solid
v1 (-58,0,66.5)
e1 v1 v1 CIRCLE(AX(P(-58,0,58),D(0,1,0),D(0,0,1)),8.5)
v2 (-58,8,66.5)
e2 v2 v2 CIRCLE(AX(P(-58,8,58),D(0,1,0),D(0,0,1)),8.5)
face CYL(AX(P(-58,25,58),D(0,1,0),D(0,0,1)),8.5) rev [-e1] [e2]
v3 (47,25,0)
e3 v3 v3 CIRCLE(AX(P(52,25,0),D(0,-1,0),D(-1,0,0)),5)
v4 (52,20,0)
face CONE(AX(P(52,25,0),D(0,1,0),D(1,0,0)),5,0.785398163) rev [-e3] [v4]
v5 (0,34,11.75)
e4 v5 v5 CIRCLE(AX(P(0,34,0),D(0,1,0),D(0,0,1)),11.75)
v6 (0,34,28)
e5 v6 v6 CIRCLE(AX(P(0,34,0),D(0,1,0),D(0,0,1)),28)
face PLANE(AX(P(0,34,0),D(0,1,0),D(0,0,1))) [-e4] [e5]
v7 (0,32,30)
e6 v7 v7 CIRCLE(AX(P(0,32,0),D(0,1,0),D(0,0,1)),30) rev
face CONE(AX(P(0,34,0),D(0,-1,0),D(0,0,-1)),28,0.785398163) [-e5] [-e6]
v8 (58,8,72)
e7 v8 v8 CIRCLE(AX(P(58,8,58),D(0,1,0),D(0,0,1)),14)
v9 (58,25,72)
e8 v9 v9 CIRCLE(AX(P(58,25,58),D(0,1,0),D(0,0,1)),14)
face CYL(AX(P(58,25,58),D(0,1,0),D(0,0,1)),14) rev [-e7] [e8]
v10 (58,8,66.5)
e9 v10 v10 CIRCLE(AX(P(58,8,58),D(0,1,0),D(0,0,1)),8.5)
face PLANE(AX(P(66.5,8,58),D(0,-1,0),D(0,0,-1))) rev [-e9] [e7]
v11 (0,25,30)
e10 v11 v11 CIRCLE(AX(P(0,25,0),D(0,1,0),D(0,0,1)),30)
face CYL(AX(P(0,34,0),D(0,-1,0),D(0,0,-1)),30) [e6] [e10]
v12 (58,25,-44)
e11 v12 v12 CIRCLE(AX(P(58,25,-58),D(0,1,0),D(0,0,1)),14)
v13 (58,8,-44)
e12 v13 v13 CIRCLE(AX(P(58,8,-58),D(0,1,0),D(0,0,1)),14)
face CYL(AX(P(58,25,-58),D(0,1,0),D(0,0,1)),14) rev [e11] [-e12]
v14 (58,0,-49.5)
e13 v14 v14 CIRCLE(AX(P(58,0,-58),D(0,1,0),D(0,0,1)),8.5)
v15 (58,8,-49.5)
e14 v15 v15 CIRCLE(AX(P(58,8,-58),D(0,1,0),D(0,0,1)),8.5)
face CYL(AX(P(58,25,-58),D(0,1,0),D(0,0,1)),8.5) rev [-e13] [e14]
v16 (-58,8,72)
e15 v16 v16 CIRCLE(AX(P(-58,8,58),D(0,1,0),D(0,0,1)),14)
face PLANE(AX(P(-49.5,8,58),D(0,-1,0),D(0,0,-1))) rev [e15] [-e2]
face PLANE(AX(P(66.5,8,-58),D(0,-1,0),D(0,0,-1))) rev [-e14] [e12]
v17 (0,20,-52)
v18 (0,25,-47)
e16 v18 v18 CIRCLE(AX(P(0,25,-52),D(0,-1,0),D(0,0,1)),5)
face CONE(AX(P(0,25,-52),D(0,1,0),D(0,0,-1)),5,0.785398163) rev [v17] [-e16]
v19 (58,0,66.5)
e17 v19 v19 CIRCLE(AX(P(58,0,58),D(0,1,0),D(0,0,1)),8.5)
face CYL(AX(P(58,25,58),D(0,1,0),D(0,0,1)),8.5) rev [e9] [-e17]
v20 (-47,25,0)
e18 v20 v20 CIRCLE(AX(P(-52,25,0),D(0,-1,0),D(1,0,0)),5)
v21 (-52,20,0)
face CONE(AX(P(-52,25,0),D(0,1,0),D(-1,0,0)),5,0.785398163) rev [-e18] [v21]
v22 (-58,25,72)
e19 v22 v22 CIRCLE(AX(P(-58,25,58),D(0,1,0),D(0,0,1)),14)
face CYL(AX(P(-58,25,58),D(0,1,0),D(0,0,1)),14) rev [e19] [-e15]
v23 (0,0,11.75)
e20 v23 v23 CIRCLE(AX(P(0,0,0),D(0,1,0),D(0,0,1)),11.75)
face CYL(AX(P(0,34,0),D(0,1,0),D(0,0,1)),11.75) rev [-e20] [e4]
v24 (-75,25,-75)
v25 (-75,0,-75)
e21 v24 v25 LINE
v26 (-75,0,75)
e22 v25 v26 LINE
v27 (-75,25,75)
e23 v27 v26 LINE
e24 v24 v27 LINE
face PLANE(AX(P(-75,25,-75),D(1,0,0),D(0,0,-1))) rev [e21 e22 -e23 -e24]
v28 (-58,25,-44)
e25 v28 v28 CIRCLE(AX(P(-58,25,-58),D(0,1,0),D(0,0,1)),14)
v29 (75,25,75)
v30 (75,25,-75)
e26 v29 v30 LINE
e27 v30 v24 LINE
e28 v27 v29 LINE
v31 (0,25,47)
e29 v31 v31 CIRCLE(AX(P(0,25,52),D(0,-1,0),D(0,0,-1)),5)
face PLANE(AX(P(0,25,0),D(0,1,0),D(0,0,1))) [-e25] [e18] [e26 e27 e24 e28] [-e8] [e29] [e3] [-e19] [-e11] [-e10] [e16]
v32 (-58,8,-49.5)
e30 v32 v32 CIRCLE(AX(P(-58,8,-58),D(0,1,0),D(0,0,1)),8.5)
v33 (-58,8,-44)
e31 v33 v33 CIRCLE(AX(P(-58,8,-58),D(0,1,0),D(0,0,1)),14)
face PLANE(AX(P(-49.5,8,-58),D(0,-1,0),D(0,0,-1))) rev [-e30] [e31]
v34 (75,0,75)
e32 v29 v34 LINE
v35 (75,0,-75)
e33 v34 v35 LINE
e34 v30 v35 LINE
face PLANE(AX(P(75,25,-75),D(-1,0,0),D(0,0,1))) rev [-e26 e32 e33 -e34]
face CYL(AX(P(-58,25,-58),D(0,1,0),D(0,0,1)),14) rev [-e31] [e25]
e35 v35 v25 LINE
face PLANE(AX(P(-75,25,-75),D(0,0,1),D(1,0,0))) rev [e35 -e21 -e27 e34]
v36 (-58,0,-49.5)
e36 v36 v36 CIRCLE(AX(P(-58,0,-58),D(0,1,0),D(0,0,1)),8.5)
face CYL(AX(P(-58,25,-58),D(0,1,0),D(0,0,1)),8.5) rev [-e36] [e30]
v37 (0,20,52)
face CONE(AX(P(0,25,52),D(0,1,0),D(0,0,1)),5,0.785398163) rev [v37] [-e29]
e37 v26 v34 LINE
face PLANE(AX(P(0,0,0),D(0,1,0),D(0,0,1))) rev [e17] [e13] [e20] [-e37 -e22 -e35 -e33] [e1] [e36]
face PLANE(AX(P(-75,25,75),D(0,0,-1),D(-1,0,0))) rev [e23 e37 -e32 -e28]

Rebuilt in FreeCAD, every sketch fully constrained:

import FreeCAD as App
import Part
import Sketcher

V = App.Vector


def edges_at(feature, points):
    """Names of the edges that pass closest to the given points."""
    edges = feature.Shape.Edges
    near = lambda p: min(range(len(edges)), key=lambda i: edges[i].distToShape(Part.Vertex(*p))[0])
    return sorted({f"Edge{near(p) + 1}" for p in points})

doc = App.newDocument("Part")
params = doc.addObject("Spreadsheet::Sheet", "Params")
for row, (alias, value) in enumerate([
    ("sketch1_width", "150 mm"),
    ("pad1_length", "25 mm"),
    ("sketch2_diameter", "60 mm"),
    ("pad2_length", "9 mm"),
    ("chamfer_size", "2 mm"),
    ("sketch3_diameter", "17 mm"),
    ("hole_diameter", "17 mm"),
    ("hole_cbore_diameter", "28 mm"),
    ("hole_cbore_depth", "17 mm"),
    ("sketch4_width", "5 mm"),
    ("groove_angle", "360 deg"),
    ("sketch5_diameter", "23.5 mm"),
    ("hole2_diameter", "23.5 mm"),
], start=1):
    params.set(f"A{row}", alias)
    params.set(f"B{row}", "=" + value)
    params.setAlias(f"B{row}", alias)

body = doc.addObject("PartDesign::Body", "Body")

# Sketch on XZ plane
sketch1 = body.newObject("Sketcher::SketchObject", "Sketch")
sketch1.AttachmentSupport = (doc.getObject("XZ_Plane"), [""])
sketch1.MapMode = "FlatFace"
sketch1.addGeometry([
    Part.LineSegment(V(-75, -75, 0), V(-75, 75, 0)),
    Part.LineSegment(V(-75, 75, 0), V(75, 75, 0)),
    Part.LineSegment(V(75, 75, 0), V(75, -75, 0)),
    Part.LineSegment(V(75, -75, 0), V(-75, -75, 0)),
], False)
sketch1.addConstraint([
    Sketcher.Constraint("Coincident", 0, 2, 1, 1),
    Sketcher.Constraint("Coincident", 1, 2, 2, 1),
    Sketcher.Constraint("Coincident", 2, 2, 3, 1),
    Sketcher.Constraint("Coincident", 3, 2, 0, 1),
    Sketcher.Constraint("Vertical", 0),
    Sketcher.Constraint("Horizontal", 1),
    Sketcher.Constraint("Vertical", 2),
    Sketcher.Constraint("Horizontal", 3),
    Sketcher.Constraint("Symmetric", 0, 2, 2, 2, -1, 1),
    Sketcher.Constraint("Equal", 3, 0),
    Sketcher.Constraint("DistanceX", 1, 1, 1, 2, 150.0),
])
sketch1.setExpression("Constraints[10]", "Params.sketch1_width")
pad1 = body.newObject("PartDesign::Pad", "Pad")
pad1.Profile = sketch1
pad1.setExpression("Length", "Params.pad1_length")
pad1.Reversed = True

# Sketch on XZ plane
sketch2 = body.newObject("Sketcher::SketchObject", "Sketch001")
sketch2.AttachmentSupport = (doc.getObject("XZ_Plane"), [""])
sketch2.MapMode = "FlatFace"
sketch2.AttachmentOffset = App.Placement(V(0, 0, -25), App.Rotation())
sketch2.addGeometry(Part.Circle(V(0, 0, 0), V(0, 0, 1), 30), False)
sketch2.addConstraint([
    Sketcher.Constraint("Coincident", 0, 3, -1, 1),
    Sketcher.Constraint("Diameter", 0, 60.0),
])
sketch2.setExpression("Constraints[1]", "Params.sketch2_diameter")
pad2 = body.newObject("PartDesign::Pad", "Pad001")
pad2.Profile = sketch2
pad2.setExpression("Length", "Params.pad2_length")
pad2.Reversed = True
doc.recompute()

chamfer = body.newObject("PartDesign::Chamfer", "Chamfer")
chamfer.Base = (pad2, edges_at(pad2, [(0, 34, -30)]))
chamfer.setExpression("Size", "Params.chamfer_size")

# Sketch on XZ plane
sketch3 = body.newObject("Sketcher::SketchObject", "Sketch002")
sketch3.AttachmentSupport = (doc.getObject("XZ_Plane"), [""])
sketch3.MapMode = "FlatFace"
sketch3.AttachmentOffset = App.Placement(V(0, 0, -25), App.Rotation())
sketch3.addGeometry([
    Part.Circle(V(-58, -58, 0), V(0, 0, 1), 8.5),
    Part.Circle(V(58, -58, 0), V(0, 0, 1), 8.5),
    Part.Circle(V(58, 58, 0), V(0, 0, 1), 8.5),
    Part.Circle(V(-58, 58, 0), V(0, 0, 1), 8.5),
], False)
sketch3.addConstraint([
    Sketcher.Constraint("Equal", 0, 1),
    Sketcher.Constraint("Equal", 1, 2),
    Sketcher.Constraint("Equal", 2, 3),
    Sketcher.Constraint("Symmetric", 0, 3, 2, 3, -1, 1),
    Sketcher.Constraint("Symmetric", 1, 3, 3, 3, -1, 1),
    Sketcher.Constraint("Symmetric", 0, 3, 1, 3, -2),
    Sketcher.Constraint("Diameter", 0, 17.0),
    Sketcher.Constraint("DistanceX", 0, 3, -1, 1, 58.0),
    Sketcher.Constraint("DistanceY", 0, 3, -1, 1, 58.0),
])
sketch3.setExpression("Constraints[6]", "Params.sketch3_diameter")
doc.recompute()
hole = body.newObject("PartDesign::Hole", "Hole")
hole.Profile = sketch3
hole.ThreadType = "None"
hole.setExpression("Diameter", "Params.hole_diameter")
hole.DepthType = "ThroughAll"
hole.HoleCutType = "Counterbore"
hole.setExpression("HoleCutDiameter", "Params.hole_cbore_diameter")
hole.setExpression("HoleCutDepth", "Params.hole_cbore_depth")
hole.Reversed = True

# Sketch on XY plane
sketch4 = body.newObject("Sketcher::SketchObject", "Sketch003")
sketch4.AttachmentSupport = (doc.getObject("XY_Plane"), [""])
sketch4.MapMode = "FlatFace"
sketch4.addGeometry([
    Part.LineSegment(V(-57, 25, 0), V(-52, 20, 0)),
    Part.LineSegment(V(-52, 20, 0), V(-52, 25, 0)),
    Part.LineSegment(V(-52, 25, 0), V(-57, 25, 0)),
], False)
sketch4.addGeometry(Part.LineSegment(V(-52, 20, 0), V(-52, 25, 0)), True)  # axis
sketch4.addConstraint([
    Sketcher.Constraint("Coincident", 0, 2, 1, 1),
    Sketcher.Constraint("Coincident", 1, 2, 2, 1),
    Sketcher.Constraint("Coincident", 2, 2, 0, 1),
    Sketcher.Constraint("Vertical", 1),
    Sketcher.Constraint("Horizontal", 2),
    Sketcher.Constraint("Vertical", 3),
    Sketcher.Constraint("Coincident", 3, 1, 0, 2),
    Sketcher.Constraint("Horizontal", 2, 2, 3, 2),
    Sketcher.Constraint("Equal", 2, 1),
    Sketcher.Constraint("DistanceX", 2, 2, 2, 1, 5.0),
    Sketcher.Constraint("DistanceX", 0, 2, -1, 1, 52.0),
    Sketcher.Constraint("DistanceY", -1, 1, 0, 2, 20.0),
])
sketch4.setExpression("Constraints[9]", "Params.sketch4_width")
groove = body.newObject("PartDesign::Groove", "Groove")
groove.Profile = sketch4
groove.ReferenceAxis = (sketch4, ["Axis0"])
groove.setExpression("Angle", "Params.groove_angle")

# Sketch on XZ plane
sketch5 = body.newObject("Sketcher::SketchObject", "Sketch004")
sketch5.AttachmentSupport = (doc.getObject("XZ_Plane"), [""])
sketch5.MapMode = "FlatFace"
sketch5.AttachmentOffset = App.Placement(V(0, 0, -34), App.Rotation())
sketch5.addGeometry(Part.Circle(V(0, 0, 0), V(0, 0, 1), 11.75), False)
sketch5.addConstraint([
    Sketcher.Constraint("Coincident", 0, 3, -1, 1),
    Sketcher.Constraint("Diameter", 0, 23.5),
])
sketch5.setExpression("Constraints[1]", "Params.sketch5_diameter")
doc.recompute()
hole2 = body.newObject("PartDesign::Hole", "Hole001")
hole2.Profile = sketch5
hole2.ThreadType = "None"
hole2.setExpression("Diameter", "Params.hole2_diameter")
hole2.DepthType = "ThroughAll"
hole2.Reversed = True
doc.recompute()

polarpattern = body.newObject("PartDesign::PolarPattern", "PolarPattern")
polarpattern.Originals = [groove]
polarpattern.Axis = (doc.getObject("Y_Axis"), [""])
polarpattern.Angle = 360
polarpattern.Occurrences = 4
body.Tip = polarpattern

doc.recompute()
